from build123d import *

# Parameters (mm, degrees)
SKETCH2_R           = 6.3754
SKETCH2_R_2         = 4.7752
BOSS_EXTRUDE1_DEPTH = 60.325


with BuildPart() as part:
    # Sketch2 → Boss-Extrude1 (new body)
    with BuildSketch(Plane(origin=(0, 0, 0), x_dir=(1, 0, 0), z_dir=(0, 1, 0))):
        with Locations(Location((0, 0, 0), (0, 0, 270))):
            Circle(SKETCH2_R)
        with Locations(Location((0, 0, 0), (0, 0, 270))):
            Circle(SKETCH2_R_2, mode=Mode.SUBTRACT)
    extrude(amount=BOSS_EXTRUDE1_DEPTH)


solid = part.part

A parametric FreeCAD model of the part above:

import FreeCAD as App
import Part
import Sketcher

V = App.Vector
Q = App.Units.Quantity

doc = App.newDocument("Part")
body = doc.addObject("PartDesign::Body", "Body")

sketch1 = body.newObject("Sketcher::SketchObject", "Sketch")
sketch1.AttachmentSupport = (doc.getObject("XZ_Plane"), [""])
sketch1.MapMode = "FlatFace"
sketch1.addGeometry([
    Part.Circle(V(0, 0, 0), V(0, 0, 1), 6.3754),
    Part.Circle(V(0, 0, 0), V(0, 0, 1), 4.7752),
], False)
sketch1.addConstraint([
    Sketcher.Constraint("Coincident", 0, 3, -1, 1),
    Sketcher.Constraint("Coincident", 1, 3, -1, 1),
    Sketcher.Constraint("Diameter", 0, Q("0.502 in")),
    Sketcher.Constraint("Diameter", 1, Q("0.376 in")),
])
pad1 = body.newObject("PartDesign::Pad", "Pad")
pad1.Profile = sketch1
pad1.Length = Q("2.375 in")
pad1.Reversed = True

doc.recompute()
